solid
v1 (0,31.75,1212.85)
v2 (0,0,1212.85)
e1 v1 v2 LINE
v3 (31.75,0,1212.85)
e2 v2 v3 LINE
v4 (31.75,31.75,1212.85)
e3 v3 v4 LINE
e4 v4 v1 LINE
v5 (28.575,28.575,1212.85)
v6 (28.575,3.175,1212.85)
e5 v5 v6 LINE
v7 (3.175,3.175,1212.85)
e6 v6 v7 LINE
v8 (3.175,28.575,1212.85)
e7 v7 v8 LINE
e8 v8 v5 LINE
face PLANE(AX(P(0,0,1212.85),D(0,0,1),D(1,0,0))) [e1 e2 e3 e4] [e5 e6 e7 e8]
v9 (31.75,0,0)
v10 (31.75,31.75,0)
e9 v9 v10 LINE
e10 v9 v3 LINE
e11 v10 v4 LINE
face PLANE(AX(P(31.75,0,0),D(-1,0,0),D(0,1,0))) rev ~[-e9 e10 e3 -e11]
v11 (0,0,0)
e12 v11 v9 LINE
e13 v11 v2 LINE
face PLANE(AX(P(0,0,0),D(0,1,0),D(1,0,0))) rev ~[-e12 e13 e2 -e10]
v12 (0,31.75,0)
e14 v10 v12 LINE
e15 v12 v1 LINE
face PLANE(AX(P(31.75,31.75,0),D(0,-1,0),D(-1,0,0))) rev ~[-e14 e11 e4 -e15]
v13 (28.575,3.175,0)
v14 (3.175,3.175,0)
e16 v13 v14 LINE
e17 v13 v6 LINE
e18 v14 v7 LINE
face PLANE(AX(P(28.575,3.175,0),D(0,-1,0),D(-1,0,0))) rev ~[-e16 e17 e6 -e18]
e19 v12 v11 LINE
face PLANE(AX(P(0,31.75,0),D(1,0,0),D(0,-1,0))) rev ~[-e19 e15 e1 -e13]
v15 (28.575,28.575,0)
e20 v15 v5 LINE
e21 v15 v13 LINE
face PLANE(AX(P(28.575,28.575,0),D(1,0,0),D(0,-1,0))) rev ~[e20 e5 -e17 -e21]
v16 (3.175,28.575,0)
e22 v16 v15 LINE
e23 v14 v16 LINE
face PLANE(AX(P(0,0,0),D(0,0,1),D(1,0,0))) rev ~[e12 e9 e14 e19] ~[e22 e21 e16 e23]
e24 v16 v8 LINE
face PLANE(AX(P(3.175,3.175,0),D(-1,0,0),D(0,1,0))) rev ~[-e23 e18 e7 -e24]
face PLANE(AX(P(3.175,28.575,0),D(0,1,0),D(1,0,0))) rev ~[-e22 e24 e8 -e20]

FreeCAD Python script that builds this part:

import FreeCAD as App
import Part
import Sketcher
Q = App.Units.Quantity


def add_polygon(sketch, points):
    """Adds a closed chain of lines whose ends are joined by coincident constraints."""
    first, n = sketch.GeometryCount, len(points)
    for a, b in zip(points, points[1:] + points[:1]):
        sketch.addGeometry(Part.LineSegment(App.Vector(*a, 0), App.Vector(*b, 0)), False)
    for i in range(n):
        sketch.addConstraint(Sketcher.Constraint("Coincident", first + i, 2, first + (i + 1) % n, 1))

doc = App.newDocument("Part")
body = doc.addObject("PartDesign::Body", "Body")

# Sketch on XY plane
sketch1 = body.newObject("Sketcher::SketchObject", "Sketch")
sketch1.AttachmentSupport = (doc.getObject("XY_Plane"), [""])
sketch1.MapMode = "FlatFace"
add_polygon(sketch1, [(0, 32), (0, 0), (32, 0), (32, 32)])  # lines 0-3
add_polygon(sketch1, [(3, 3), (3, 29), (29, 29), (29, 3)])  # lines 4-7
sketch1.addConstraint([
    Sketcher.Constraint("Vertical", 0),
    Sketcher.Constraint("Horizontal", 1),
    Sketcher.Constraint("Vertical", 2),
    Sketcher.Constraint("Horizontal", 3),
    Sketcher.Constraint("Vertical", 4),
    Sketcher.Constraint("Horizontal", 5),
    Sketcher.Constraint("Vertical", 6),
    Sketcher.Constraint("Horizontal", 7),
    Sketcher.Constraint("Coincident", 0, 2, -1, 1),
    Sketcher.Constraint("Equal", 3, 0),
    Sketcher.Constraint("Equal", 7, 4),
    Sketcher.Constraint("DistanceX", 1, 1, 1, 2, Q("1.25 in")),
    Sketcher.Constraint("DistanceX", 5, 1, 5, 2, Q("1 in")),
    Sketcher.Constraint("DistanceX", -1, 1, 4, 2, Q("0.125 in")),
    Sketcher.Constraint("DistanceY", -1, 1, 6, 2, Q("0.125 in")),
])
pad1 = body.newObject("PartDesign::Pad", "Pad")
pad1.Profile = sketch1
pad1.Length = Q("47.75 in")

doc.recompute()
